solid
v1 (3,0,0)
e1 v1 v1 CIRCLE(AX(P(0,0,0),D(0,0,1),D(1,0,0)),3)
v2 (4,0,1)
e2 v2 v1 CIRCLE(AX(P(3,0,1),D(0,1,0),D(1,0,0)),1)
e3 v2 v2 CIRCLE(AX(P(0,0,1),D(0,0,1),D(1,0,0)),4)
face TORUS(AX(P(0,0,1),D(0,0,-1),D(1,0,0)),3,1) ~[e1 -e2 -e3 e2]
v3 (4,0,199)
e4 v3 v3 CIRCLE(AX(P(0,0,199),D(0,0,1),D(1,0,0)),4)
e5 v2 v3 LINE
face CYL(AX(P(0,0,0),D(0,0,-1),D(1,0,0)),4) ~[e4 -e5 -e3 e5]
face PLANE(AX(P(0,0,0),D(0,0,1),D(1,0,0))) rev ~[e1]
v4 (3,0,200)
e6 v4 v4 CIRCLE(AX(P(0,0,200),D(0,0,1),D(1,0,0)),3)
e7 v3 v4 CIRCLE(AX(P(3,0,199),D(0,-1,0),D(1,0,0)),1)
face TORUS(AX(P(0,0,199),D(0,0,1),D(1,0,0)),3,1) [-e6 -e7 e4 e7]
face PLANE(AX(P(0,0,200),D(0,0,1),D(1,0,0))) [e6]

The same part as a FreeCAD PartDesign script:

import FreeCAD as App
import Part
import Sketcher

V = App.Vector


def edges_at(feature, points):
    """Names of the edges that pass closest to the given points."""
    edges = feature.Shape.Edges
    near = lambda p: min(range(len(edges)), key=lambda i: edges[i].distToShape(Part.Vertex(*p))[0])
    return sorted({f"Edge{near(p) + 1}" for p in points})

doc = App.newDocument("Part")
body = doc.addObject("PartDesign::Body", "Body")

sketch1 = body.newObject("Sketcher::SketchObject", "Sketch")
sketch1.AttachmentSupport = (doc.getObject("XY_Plane"), [""])
sketch1.MapMode = "FlatFace"
sketch1.addGeometry(Part.Circle(V(0, 0, 0), V(0, 0, 1), 4), False)
sketch1.addConstraint([
    Sketcher.Constraint("Coincident", 0, 3, -1, 1),
    Sketcher.Constraint("Diameter", 0, 8.0),
])
pad1 = body.newObject("PartDesign::Pad", "Pad")
pad1.Profile = sketch1
pad1.Length = 200
doc.recompute()

fillet = body.newObject("PartDesign::Fillet", "Fillet")
fillet.Base = (pad1, edges_at(pad1, [(-4, 0, 200), (-4, 0, 0)]))
fillet.Radius = 1

doc.recompute()
